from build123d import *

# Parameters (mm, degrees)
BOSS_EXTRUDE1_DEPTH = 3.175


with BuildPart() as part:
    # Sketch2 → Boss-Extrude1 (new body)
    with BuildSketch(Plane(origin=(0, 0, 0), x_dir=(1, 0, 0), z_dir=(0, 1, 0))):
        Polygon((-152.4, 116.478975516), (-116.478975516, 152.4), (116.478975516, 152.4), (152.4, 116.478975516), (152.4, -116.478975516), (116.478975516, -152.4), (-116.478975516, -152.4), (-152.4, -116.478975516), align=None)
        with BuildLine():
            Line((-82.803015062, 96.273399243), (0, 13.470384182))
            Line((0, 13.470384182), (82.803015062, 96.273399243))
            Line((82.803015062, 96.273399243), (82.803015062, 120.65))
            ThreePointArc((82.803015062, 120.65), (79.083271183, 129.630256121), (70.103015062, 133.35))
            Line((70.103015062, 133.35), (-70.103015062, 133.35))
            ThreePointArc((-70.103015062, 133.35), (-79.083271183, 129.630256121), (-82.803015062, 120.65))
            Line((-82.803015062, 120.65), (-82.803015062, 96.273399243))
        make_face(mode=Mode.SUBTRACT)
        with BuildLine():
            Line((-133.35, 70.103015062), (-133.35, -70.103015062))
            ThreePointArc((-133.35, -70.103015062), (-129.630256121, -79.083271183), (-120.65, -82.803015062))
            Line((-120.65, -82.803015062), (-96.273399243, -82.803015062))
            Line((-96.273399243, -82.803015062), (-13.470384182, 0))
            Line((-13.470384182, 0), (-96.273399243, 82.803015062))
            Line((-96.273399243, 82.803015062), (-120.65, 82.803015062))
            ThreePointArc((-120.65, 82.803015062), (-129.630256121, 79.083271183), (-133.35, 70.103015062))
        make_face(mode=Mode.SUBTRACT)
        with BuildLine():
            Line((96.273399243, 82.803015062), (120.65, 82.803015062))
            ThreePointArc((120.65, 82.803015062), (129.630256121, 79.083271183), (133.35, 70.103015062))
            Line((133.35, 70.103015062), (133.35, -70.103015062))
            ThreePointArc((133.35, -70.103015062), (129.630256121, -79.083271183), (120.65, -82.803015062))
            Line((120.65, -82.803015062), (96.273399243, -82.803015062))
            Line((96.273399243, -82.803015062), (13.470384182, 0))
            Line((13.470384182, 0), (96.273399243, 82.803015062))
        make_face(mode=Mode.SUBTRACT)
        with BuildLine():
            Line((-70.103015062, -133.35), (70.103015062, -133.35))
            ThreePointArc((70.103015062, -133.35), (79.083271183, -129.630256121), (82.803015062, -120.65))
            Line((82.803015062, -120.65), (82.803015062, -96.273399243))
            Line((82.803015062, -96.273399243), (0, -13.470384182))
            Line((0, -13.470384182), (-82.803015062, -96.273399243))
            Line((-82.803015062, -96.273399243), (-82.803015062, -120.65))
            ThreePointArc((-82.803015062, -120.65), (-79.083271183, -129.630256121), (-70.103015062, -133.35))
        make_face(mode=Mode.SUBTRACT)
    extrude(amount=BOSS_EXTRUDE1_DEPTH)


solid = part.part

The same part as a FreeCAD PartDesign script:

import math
import FreeCAD as App
import Part
import Sketcher
from FreeCAD import Vector
Q = App.Units.Quantity

doc = App.newDocument("Part")
body = doc.addObject("PartDesign::Body", "Body")

sketch1 = body.newObject("Sketcher::SketchObject", "Sketch")
sketch1.AttachmentSupport = (doc.getObject("XZ_Plane"), [""])
sketch1.MapMode = "FlatFace"
sketch1.addGeometry(Part.LineSegment(Vector(-116, -152, 0), Vector(-152, -116, 0)), False)
sketch1.addGeometry(Part.LineSegment(Vector(-152, -116, 0), Vector(-152, 116, 0)), False)
sketch1.addGeometry(Part.LineSegment(Vector(-152, 116, 0), Vector(-116, 152, 0)), False)
sketch1.addGeometry(Part.LineSegment(Vector(-116, 152, 0), Vector(116, 152, 0)), False)
sketch1.addGeometry(Part.LineSegment(Vector(116, 152, 0), Vector(152, 116, 0)), False)
sketch1.addGeometry(Part.LineSegment(Vector(152, 116, 0), Vector(152, -116, 0)), False)
sketch1.addGeometry(Part.LineSegment(Vector(152, -116, 0), Vector(116, -152, 0)), False)
sketch1.addGeometry(Part.LineSegment(Vector(116, -152, 0), Vector(-116, -152, 0)), False)
sketch1.addGeometry(Part.ArcOfCircle(Part.Circle(Vector(-70, 121, 0), Vector(0, 0, 1), 13), math.radians(90), math.radians(180)), False)
sketch1.addGeometry(Part.LineSegment(Vector(-83, 121, 0), Vector(-83, 96, 0)), False)
sketch1.addGeometry(Part.LineSegment(Vector(-83, 96, 0), Vector(0, 13, 0)), False)
sketch1.addGeometry(Part.LineSegment(Vector(0, 13, 0), Vector(83, 96, 0)), False)
sketch1.addGeometry(Part.LineSegment(Vector(83, 96, 0), Vector(83, 121, 0)), False)
sketch1.addGeometry(Part.ArcOfCircle(Part.Circle(Vector(70, 121, 0), Vector(0, 0, 1), 13), math.radians(0), math.radians(90)), False)
sketch1.addGeometry(Part.LineSegment(Vector(70, 133, 0), Vector(-70, 133, 0)), False)
sketch1.addGeometry(Part.LineSegment(Vector(96, -83, 0), Vector(121, -83, 0)), False)
sketch1.addGeometry(Part.ArcOfCircle(Part.Circle(Vector(121, -70, 0), Vector(0, 0, 1), 13), math.radians(-90), math.radians(0)), False)
sketch1.addGeometry(Part.LineSegment(Vector(133, -70, 0), Vector(133, 70, 0)), False)
sketch1.addGeometry(Part.ArcOfCircle(Part.Circle(Vector(121, 70, 0), Vector(0, 0, 1), 13), math.radians(0), math.radians(90)), False)
sketch1.addGeometry(Part.LineSegment(Vector(121, 83, 0), Vector(96, 83, 0)), False)
sketch1.addGeometry(Part.LineSegment(Vector(96, 83, 0), Vector(13, 0, 0)), False)
sketch1.addGeometry(Part.LineSegment(Vector(13, 0, 0), Vector(96, -83, 0)), False)
sketch1.addGeometry(Part.ArcOfCircle(Part.Circle(Vector(-121, -70, 0), Vector(0, 0, 1), 13), math.radians(180), math.radians(270)), False)
sketch1.addGeometry(Part.LineSegment(Vector(-121, -83, 0), Vector(-96, -83, 0)), False)
sketch1.addGeometry(Part.LineSegment(Vector(-96, -83, 0), Vector(-13, 0, 0)), False)
sketch1.addGeometry(Part.LineSegment(Vector(-13, 0, 0), Vector(-96, 83, 0)), False)
sketch1.addGeometry(Part.LineSegment(Vector(-96, 83, 0), Vector(-121, 83, 0)), False)
sketch1.addGeometry(Part.ArcOfCircle(Part.Circle(Vector(-121, 70, 0), Vector(0, 0, 1), 13), math.radians(90), math.radians(180)), False)
sketch1.addGeometry(Part.LineSegment(Vector(-133, 70, 0), Vector(-133, -70, 0)), False)
sketch1.addGeometry(Part.LineSegment(Vector(-83, -96, 0), Vector(-83, -121, 0)), False)
sketch1.addGeometry(Part.ArcOfCircle(Part.Circle(Vector(-70, -121, 0), Vector(0, 0, 1), 13), math.radians(180), math.radians(270)), False)
sketch1.addGeometry(Part.LineSegment(Vector(-70, -133, 0), Vector(70, -133, 0)), False)
sketch1.addGeometry(Part.ArcOfCircle(Part.Circle(Vector(70, -121, 0), Vector(0, 0, 1), 13), math.radians(-90), math.radians(0)), False)
sketch1.addGeometry(Part.LineSegment(Vector(83, -121, 0), Vector(83, -96, 0)), False)
sketch1.addGeometry(Part.LineSegment(Vector(83, -96, 0), Vector(0, -13, 0)), False)
sketch1.addGeometry(Part.LineSegment(Vector(0, -13, 0), Vector(-83, -96, 0)), False)
sketch1.addConstraint(Sketcher.Constraint("Coincident", 0, 2, 1, 1))
sketch1.addConstraint(Sketcher.Constraint("Coincident", 1, 2, 2, 1))
sketch1.addConstraint(Sketcher.Constraint("Coincident", 2, 2, 3, 1))
sketch1.addConstraint(Sketcher.Constraint("Coincident", 3, 2, 4, 1))
sketch1.addConstraint(Sketcher.Constraint("Coincident", 4, 2, 5, 1))
sketch1.addConstraint(Sketcher.Constraint("Coincident", 5, 2, 6, 1))
sketch1.addConstraint(Sketcher.Constraint("Coincident", 6, 2, 7, 1))
sketch1.addConstraint(Sketcher.Constraint("Coincident", 7, 2, 0, 1))
sketch1.addConstraint(Sketcher.Constraint("Tangent", 8, 2, 9, 1))
sketch1.addConstraint(Sketcher.Constraint("Coincident", 9, 2, 10, 1))
sketch1.addConstraint(Sketcher.Constraint("Coincident", 10, 2, 11, 1))
sketch1.addConstraint(Sketcher.Constraint("Coincident", 11, 2, 12, 1))
sketch1.addConstraint(Sketcher.Constraint("Tangent", 12, 2, 13, 1))
sketch1.addConstraint(Sketcher.Constraint("Tangent", 13, 2, 14, 1))
sketch1.addConstraint(Sketcher.Constraint("Tangent", 14, 2, 8, 1))
sketch1.addConstraint(Sketcher.Constraint("Tangent", 15, 2, 16, 1))
sketch1.addConstraint(Sketcher.Constraint("Tangent", 16, 2, 17, 1))
sketch1.addConstraint(Sketcher.Constraint("Tangent", 17, 2, 18, 1))
sketch1.addConstraint(Sketcher.Constraint("Tangent", 18, 2, 19, 1))
sketch1.addConstraint(Sketcher.Constraint("Coincident", 19, 2, 20, 1))
sketch1.addConstraint(Sketcher.Constraint("Coincident", 20, 2, 21, 1))
sketch1.addConstraint(Sketcher.Constraint("Coincident", 21, 2, 15, 1))
sketch1.addConstraint(Sketcher.Constraint("Tangent", 22, 2, 23, 1))
sketch1.addConstraint(Sketcher.Constraint("Coincident", 23, 2, 24, 1))
sketch1.addConstraint(Sketcher.Constraint("Coincident", 24, 2, 25, 1))
sketch1.addConstraint(Sketcher.Constraint("Coincident", 25, 2, 26, 1))
sketch1.addConstraint(Sketcher.Constraint("Tangent", 26, 2, 27, 1))
sketch1.addConstraint(Sketcher.Constraint("Tangent", 27, 2, 28, 1))
sketch1.addConstraint(Sketcher.Constraint("Tangent", 28, 2, 22, 1))
sketch1.addConstraint(Sketcher.Constraint("Tangent", 29, 2, 30, 1))
sketch1.addConstraint(Sketcher.Constraint("Tangent", 30, 2, 31, 1))
sketch1.addConstraint(Sketcher.Constraint("Tangent", 31, 2, 32, 1))
sketch1.addConstraint(Sketcher.Constraint("Tangent", 32, 2, 33, 1))
sketch1.addConstraint(Sketcher.Constraint("Coincident", 33, 2, 34, 1))
sketch1.addConstraint(Sketcher.Constraint("Coincident", 34, 2, 35, 1))
sketch1.addConstraint(Sketcher.Constraint("Coincident", 35, 2, 29, 1))
sketch1.addConstraint(Sketcher.Constraint("Vertical", 1))
sketch1.addConstraint(Sketcher.Constraint("Horizontal", 3))
sketch1.addConstraint(Sketcher.Constraint("Vertical", 5))
sketch1.addConstraint(Sketcher.Constraint("Horizontal", 7))
sketch1.addConstraint(Sketcher.Constraint("Vertical", 9))
sketch1.addConstraint(Sketcher.Constraint("Vertical", 12))
sketch1.addConstraint(Sketcher.Constraint("Horizontal", 14))
sketch1.addConstraint(Sketcher.Constraint("Horizontal", 15))
sketch1.addConstraint(Sketcher.Constraint("Vertical", 17))
sketch1.addConstraint(Sketcher.Constraint("Horizontal", 19))
sketch1.addConstraint(Sketcher.Constraint("Horizontal", 23))
sketch1.addConstraint(Sketcher.Constraint("Horizontal", 26))
sketch1.addConstraint(Sketcher.Constraint("Vertical", 28))
sketch1.addConstraint(Sketcher.Constraint("Vertical", 29))
sketch1.addConstraint(Sketcher.Constraint("Horizontal", 31))
sketch1.addConstraint(Sketcher.Constraint("Vertical", 33))
sketch1.addConstraint(Sketcher.Constraint("Equal", 8, 13))
sketch1.addConstraint(Sketcher.Constraint("Equal", 13, 16))
sketch1.addConstraint(Sketcher.Constraint("Equal", 16, 18))
sketch1.addConstraint(Sketcher.Constraint("Equal", 18, 22))
sketch1.addConstraint(Sketcher.Constraint("Equal", 22, 27))
sketch1.addConstraint(Sketcher.Constraint("Equal", 27, 30))
sketch1.addConstraint(Sketcher.Constraint("Equal", 30, 32))
sketch1.addConstraint(Sketcher.Constraint("Symmetric", 18, 3, 22, 3, -1, 1))
sketch1.addConstraint(Sketcher.Constraint("Symmetric", 13, 3, 30, 3, -1, 1))
sketch1.addConstraint(Sketcher.Constraint("Symmetric", 0, 2, 4, 2, -1, 1))
sketch1.addConstraint(Sketcher.Constraint("Symmetric", 2, 2, 6, 2, -1, 1))
sketch1.addConstraint(Sketcher.Constraint("Symmetric", 20, 2, 24, 2, -1, 1))
sketch1.addConstraint(Sketcher.Constraint("Symmetric", 21, 2, 25, 2, -1, 1))
sketch1.addConstraint(Sketcher.Constraint("Symmetric", 9, 2, 33, 2, -1, 1))
sketch1.addConstraint(Sketcher.Constraint("Symmetric", 10, 2, 34, 2, -1, 1))
sketch1.addConstraint(Sketcher.Constraint("Symmetric", 9, 2, 11, 2, -2))
sketch1.addConstraint(Sketcher.Constraint("Symmetric", 21, 2, 23, 2, -2))
sketch1.addConstraint(Sketcher.Constraint("PointOnObject", 10, 2, -2))
sketch1.addConstraint(Sketcher.Constraint("PointOnObject", 20, 2, -1))
sketch1.addConstraint(Sketcher.Constraint("Perpendicular", 0, 2))
sketch1.addConstraint(Sketcher.Constraint("Perpendicular", 2, 4))
sketch1.addConstraint(Sketcher.Constraint("Perpendicular", 4, 6))
sketch1.addConstraint(Sketcher.Constraint("Perpendicular", 6, 10))
sketch1.addConstraint(Sketcher.Constraint("Perpendicular", 10, 11))
sketch1.addConstraint(Sketcher.Constraint("Parallel", 11, 20))
sketch1.addConstraint(Sketcher.Constraint("Perpendicular", 20, 21))
sketch1.addConstraint(Sketcher.Constraint("Perpendicular", 34, 35))
sketch1.addConstraint(Sketcher.Constraint("Horizontal", 1, 2, 4, 2))
sketch1.addConstraint(Sketcher.Constraint("Equal", 7, 1))
sketch1.addConstraint(Sketcher.Constraint("Equal", 26, 9))
sketch1.addConstraint(Sketcher.Constraint("Equal", 31, 17))
sketch1.addConstraint(Sketcher.Constraint("Radius", 8, Q("0.5 in")))
sketch1.addConstraint(Sketcher.Constraint("Distance", 0, Q("2 in")))
sketch1.addConstraint(Sketcher.Constraint("DistanceX", 0, 2, -1, 1, Q("6 in")))
sketch1.addConstraint(Sketcher.Constraint("DistanceX", 22, 3, 16, 3, Q("9.5 in")))
sketch1.addConstraint(Sketcher.Constraint("DistanceY", 30, 3, 8, 3, Q("9.5 in")))
sketch1.addConstraint(Sketcher.Constraint("DistanceX", 15, 1, 15, 2, Q("24.376601 mm")))
sketch1.addConstraint(Sketcher.Constraint("DistanceX", 14, 2, 14, 1, Q("140.20603 mm")))
pad1 = body.newObject("PartDesign::Pad", "Pad")
pad1.Profile = sketch1
pad1.Length = Q("0.125 in")
pad1.Reversed = True

doc.recompute()
